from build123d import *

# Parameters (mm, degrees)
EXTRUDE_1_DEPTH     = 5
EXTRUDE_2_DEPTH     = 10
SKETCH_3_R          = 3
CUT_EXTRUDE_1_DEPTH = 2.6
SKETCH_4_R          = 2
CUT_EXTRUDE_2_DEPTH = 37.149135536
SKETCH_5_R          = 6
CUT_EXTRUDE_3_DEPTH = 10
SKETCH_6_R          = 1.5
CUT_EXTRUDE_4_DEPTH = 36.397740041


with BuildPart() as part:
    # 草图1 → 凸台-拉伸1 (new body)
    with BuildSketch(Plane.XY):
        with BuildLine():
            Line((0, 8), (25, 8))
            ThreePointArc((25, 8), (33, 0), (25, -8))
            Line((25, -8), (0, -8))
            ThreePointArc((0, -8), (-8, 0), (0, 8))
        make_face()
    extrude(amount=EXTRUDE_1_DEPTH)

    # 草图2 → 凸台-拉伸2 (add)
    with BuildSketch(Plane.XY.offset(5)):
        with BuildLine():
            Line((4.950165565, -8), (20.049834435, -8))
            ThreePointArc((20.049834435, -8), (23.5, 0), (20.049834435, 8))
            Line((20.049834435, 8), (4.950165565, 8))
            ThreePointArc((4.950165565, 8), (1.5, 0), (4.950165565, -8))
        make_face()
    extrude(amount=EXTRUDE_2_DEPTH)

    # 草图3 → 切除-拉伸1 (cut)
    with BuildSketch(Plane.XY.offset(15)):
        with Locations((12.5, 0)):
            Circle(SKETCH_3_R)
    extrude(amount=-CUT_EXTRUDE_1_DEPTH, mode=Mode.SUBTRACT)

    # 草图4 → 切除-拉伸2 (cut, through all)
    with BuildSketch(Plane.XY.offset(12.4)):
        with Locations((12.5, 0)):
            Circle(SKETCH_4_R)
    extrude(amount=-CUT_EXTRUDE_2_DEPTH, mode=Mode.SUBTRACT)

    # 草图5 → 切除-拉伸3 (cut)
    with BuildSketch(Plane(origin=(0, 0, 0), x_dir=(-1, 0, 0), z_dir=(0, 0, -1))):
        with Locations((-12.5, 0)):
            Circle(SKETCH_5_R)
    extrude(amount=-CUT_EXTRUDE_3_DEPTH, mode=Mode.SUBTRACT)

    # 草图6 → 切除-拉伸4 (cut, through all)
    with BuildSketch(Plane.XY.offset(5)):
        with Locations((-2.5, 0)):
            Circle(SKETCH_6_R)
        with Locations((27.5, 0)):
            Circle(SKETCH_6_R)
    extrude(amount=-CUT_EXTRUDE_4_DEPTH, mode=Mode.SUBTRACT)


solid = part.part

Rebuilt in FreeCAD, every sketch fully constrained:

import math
import FreeCAD as App
import Part
import Sketcher
from FreeCAD import Vector

doc = App.newDocument("Part")
body = doc.addObject("PartDesign::Body", "Body")

sketch1 = body.newObject("Sketcher::SketchObject", "Sketch")
sketch1.AttachmentSupport = (doc.getObject("XY_Plane"), [""])
sketch1.MapMode = "FlatFace"
sketch1.addGeometry([
    Part.LineSegment(Vector(25, 8, 0), Vector(0, 8, 0)),
    Part.ArcOfCircle(Part.Circle(Vector(0, 0, 0), Vector(0, 0, 1), 8), math.radians(90), math.radians(270)),
    Part.LineSegment(Vector(0, -8, 0), Vector(25, -8, 0)),
    Part.ArcOfCircle(Part.Circle(Vector(25, 0, 0), Vector(0, 0, 1), 8), math.radians(-90), math.radians(90)),
], False)
sketch1.addConstraint([
    Sketcher.Constraint("Tangent", 0, 2, 1, 1),
    Sketcher.Constraint("Tangent", 1, 2, 2, 1),
    Sketcher.Constraint("Tangent", 2, 2, 3, 1),
    Sketcher.Constraint("Tangent", 3, 2, 0, 1),
    Sketcher.Constraint("Horizontal", 0),
    Sketcher.Constraint("Horizontal", 2),
    Sketcher.Constraint("Coincident", 1, 3, -1, 1),
    Sketcher.Constraint("Radius", 1, 8.0),
    Sketcher.Constraint("DistanceX", 0, 2, 0, 1, 25.0),
])
pad1 = body.newObject("PartDesign::Pad", "Pad")
pad1.Profile = sketch1
pad1.Length = 5

sketch2 = body.newObject("Sketcher::SketchObject", "Sketch001")
sketch2.AttachmentSupport = (doc.getObject("XY_Plane"), [""])
sketch2.MapMode = "FlatFace"
sketch2.AttachmentOffset = App.Placement(Vector(0, 0, 5), App.Rotation())
sketch2.addGeometry([
    Part.LineSegment(Vector(5, -8, 0), Vector(20, -8, 0)),
    Part.ArcOfCircle(Part.Circle(Vector(13, 0, 0), Vector(0, 0, 1), 11), math.radians(-47), math.radians(47)),
    Part.LineSegment(Vector(20, 8, 0), Vector(5, 8, 0)),
    Part.ArcOfCircle(Part.Circle(Vector(12, 0, 0), Vector(0, 0, 1), 11), math.radians(133), math.radians(227)),
], False)
sketch2.addConstraint([
    Sketcher.Constraint("Coincident", 0, 2, 1, 1),
    Sketcher.Constraint("Coincident", 1, 2, 2, 1),
    Sketcher.Constraint("Coincident", 2, 2, 3, 1),
    Sketcher.Constraint("Coincident", 3, 2, 0, 1),
    Sketcher.Constraint("Horizontal", 0),
    Sketcher.Constraint("Horizontal", 2),
    Sketcher.Constraint("Coincident", 3, 3, 1, 3),
    Sketcher.Constraint("Equal", 1, 3),
    Sketcher.Constraint("Symmetric", 0, 2, 1, 2, -1),
    Sketcher.Constraint("Radius", 1, 11.0),
    Sketcher.Constraint("DistanceY", 0, 2, -1, 1, 8.0),
    Sketcher.Constraint("DistanceX", -1, 1, 1, 3, 12.5),
])
pad2 = body.newObject("PartDesign::Pad", "Pad001")
pad2.Profile = sketch2
pad2.Length = 10

sketch3 = body.newObject("Sketcher::SketchObject", "Sketch002")
sketch3.AttachmentSupport = (doc.getObject("XY_Plane"), [""])
sketch3.MapMode = "FlatFace"
sketch3.AttachmentOffset = App.Placement(Vector(0, 0, 15), App.Rotation())
sketch3.addGeometry(Part.Circle(Vector(12.5, 0, 0), Vector(0, 0, 1), 3), False)
sketch3.addConstraint([
    Sketcher.Constraint("PointOnObject", 0, 3, -1),
    Sketcher.Constraint("Diameter", 0, 6.0),
    Sketcher.Constraint("DistanceX", -1, 1, 0, 3, 12.5),
])
pocket1 = body.newObject("PartDesign::Pocket", "Pocket")
pocket1.Profile = sketch3
pocket1.Length = 2.6

sketch4 = body.newObject("Sketcher::SketchObject", "Sketch003")
sketch4.AttachmentSupport = (doc.getObject("XY_Plane"), [""])
sketch4.MapMode = "FlatFace"
sketch4.AttachmentOffset = App.Placement(Vector(0, 0, 12.4), App.Rotation())
sketch4.addGeometry(Part.Circle(Vector(12.5, 0, 0), Vector(0, 0, 1), 2), False)
sketch4.addConstraint([
    Sketcher.Constraint("PointOnObject", 0, 3, -1),
    Sketcher.Constraint("Diameter", 0, 4.0),
    Sketcher.Constraint("DistanceX", -1, 1, 0, 3, 12.5),
])
pocket2 = body.newObject("PartDesign::Pocket", "Pocket001")
pocket2.Profile = sketch4
pocket2.Type = "ThroughAll"

sketch5 = body.newObject("Sketcher::SketchObject", "Sketch004")
sketch5.AttachmentSupport = (doc.getObject("XY_Plane"), [""])
sketch5.MapMode = "FlatFace"
sketch5.addGeometry(Part.Circle(Vector(12, 0, 0), Vector(0, 0, 1), 6), False)
sketch5.addConstraint([
    Sketcher.Constraint("PointOnObject", 0, 3, -1),
    Sketcher.Constraint("Diameter", 0, 12.0),
    Sketcher.Constraint("DistanceX", -1, 1, 0, 3, 12.5),
])
pocket3 = body.newObject("PartDesign::Pocket", "Pocket002")
pocket3.Profile = sketch5
pocket3.Length = 10
pocket3.Reversed = True

sketch6 = body.newObject("Sketcher::SketchObject", "Sketch005")
sketch6.AttachmentSupport = (doc.getObject("XY_Plane"), [""])
sketch6.MapMode = "FlatFace"
sketch6.AttachmentOffset = App.Placement(Vector(0, 0, 5), App.Rotation())
sketch6.addGeometry([
    Part.Circle(Vector(-2.5, 0, 0), Vector(0, 0, 1), 1.5),
    Part.Circle(Vector(27.5, 0, 0), Vector(0, 0, 1), 1.5),
], False)
sketch6.addConstraint([
    Sketcher.Constraint("Equal", 0, 1),
    Sketcher.Constraint("PointOnObject", 0, 3, -1),
    Sketcher.Constraint("PointOnObject", 1, 3, -1),
    Sketcher.Constraint("Diameter", 0, 3.0),
    Sketcher.Constraint("DistanceX", 0, 3, 1, 3, 30.0),
    Sketcher.Constraint("DistanceX", 0, 3, -1, 1, 2.5),
])
pocket4 = body.newObject("PartDesign::Pocket", "Pocket003")
pocket4.Profile = sketch6
pocket4.Type = "ThroughAll"

doc.recompute()
